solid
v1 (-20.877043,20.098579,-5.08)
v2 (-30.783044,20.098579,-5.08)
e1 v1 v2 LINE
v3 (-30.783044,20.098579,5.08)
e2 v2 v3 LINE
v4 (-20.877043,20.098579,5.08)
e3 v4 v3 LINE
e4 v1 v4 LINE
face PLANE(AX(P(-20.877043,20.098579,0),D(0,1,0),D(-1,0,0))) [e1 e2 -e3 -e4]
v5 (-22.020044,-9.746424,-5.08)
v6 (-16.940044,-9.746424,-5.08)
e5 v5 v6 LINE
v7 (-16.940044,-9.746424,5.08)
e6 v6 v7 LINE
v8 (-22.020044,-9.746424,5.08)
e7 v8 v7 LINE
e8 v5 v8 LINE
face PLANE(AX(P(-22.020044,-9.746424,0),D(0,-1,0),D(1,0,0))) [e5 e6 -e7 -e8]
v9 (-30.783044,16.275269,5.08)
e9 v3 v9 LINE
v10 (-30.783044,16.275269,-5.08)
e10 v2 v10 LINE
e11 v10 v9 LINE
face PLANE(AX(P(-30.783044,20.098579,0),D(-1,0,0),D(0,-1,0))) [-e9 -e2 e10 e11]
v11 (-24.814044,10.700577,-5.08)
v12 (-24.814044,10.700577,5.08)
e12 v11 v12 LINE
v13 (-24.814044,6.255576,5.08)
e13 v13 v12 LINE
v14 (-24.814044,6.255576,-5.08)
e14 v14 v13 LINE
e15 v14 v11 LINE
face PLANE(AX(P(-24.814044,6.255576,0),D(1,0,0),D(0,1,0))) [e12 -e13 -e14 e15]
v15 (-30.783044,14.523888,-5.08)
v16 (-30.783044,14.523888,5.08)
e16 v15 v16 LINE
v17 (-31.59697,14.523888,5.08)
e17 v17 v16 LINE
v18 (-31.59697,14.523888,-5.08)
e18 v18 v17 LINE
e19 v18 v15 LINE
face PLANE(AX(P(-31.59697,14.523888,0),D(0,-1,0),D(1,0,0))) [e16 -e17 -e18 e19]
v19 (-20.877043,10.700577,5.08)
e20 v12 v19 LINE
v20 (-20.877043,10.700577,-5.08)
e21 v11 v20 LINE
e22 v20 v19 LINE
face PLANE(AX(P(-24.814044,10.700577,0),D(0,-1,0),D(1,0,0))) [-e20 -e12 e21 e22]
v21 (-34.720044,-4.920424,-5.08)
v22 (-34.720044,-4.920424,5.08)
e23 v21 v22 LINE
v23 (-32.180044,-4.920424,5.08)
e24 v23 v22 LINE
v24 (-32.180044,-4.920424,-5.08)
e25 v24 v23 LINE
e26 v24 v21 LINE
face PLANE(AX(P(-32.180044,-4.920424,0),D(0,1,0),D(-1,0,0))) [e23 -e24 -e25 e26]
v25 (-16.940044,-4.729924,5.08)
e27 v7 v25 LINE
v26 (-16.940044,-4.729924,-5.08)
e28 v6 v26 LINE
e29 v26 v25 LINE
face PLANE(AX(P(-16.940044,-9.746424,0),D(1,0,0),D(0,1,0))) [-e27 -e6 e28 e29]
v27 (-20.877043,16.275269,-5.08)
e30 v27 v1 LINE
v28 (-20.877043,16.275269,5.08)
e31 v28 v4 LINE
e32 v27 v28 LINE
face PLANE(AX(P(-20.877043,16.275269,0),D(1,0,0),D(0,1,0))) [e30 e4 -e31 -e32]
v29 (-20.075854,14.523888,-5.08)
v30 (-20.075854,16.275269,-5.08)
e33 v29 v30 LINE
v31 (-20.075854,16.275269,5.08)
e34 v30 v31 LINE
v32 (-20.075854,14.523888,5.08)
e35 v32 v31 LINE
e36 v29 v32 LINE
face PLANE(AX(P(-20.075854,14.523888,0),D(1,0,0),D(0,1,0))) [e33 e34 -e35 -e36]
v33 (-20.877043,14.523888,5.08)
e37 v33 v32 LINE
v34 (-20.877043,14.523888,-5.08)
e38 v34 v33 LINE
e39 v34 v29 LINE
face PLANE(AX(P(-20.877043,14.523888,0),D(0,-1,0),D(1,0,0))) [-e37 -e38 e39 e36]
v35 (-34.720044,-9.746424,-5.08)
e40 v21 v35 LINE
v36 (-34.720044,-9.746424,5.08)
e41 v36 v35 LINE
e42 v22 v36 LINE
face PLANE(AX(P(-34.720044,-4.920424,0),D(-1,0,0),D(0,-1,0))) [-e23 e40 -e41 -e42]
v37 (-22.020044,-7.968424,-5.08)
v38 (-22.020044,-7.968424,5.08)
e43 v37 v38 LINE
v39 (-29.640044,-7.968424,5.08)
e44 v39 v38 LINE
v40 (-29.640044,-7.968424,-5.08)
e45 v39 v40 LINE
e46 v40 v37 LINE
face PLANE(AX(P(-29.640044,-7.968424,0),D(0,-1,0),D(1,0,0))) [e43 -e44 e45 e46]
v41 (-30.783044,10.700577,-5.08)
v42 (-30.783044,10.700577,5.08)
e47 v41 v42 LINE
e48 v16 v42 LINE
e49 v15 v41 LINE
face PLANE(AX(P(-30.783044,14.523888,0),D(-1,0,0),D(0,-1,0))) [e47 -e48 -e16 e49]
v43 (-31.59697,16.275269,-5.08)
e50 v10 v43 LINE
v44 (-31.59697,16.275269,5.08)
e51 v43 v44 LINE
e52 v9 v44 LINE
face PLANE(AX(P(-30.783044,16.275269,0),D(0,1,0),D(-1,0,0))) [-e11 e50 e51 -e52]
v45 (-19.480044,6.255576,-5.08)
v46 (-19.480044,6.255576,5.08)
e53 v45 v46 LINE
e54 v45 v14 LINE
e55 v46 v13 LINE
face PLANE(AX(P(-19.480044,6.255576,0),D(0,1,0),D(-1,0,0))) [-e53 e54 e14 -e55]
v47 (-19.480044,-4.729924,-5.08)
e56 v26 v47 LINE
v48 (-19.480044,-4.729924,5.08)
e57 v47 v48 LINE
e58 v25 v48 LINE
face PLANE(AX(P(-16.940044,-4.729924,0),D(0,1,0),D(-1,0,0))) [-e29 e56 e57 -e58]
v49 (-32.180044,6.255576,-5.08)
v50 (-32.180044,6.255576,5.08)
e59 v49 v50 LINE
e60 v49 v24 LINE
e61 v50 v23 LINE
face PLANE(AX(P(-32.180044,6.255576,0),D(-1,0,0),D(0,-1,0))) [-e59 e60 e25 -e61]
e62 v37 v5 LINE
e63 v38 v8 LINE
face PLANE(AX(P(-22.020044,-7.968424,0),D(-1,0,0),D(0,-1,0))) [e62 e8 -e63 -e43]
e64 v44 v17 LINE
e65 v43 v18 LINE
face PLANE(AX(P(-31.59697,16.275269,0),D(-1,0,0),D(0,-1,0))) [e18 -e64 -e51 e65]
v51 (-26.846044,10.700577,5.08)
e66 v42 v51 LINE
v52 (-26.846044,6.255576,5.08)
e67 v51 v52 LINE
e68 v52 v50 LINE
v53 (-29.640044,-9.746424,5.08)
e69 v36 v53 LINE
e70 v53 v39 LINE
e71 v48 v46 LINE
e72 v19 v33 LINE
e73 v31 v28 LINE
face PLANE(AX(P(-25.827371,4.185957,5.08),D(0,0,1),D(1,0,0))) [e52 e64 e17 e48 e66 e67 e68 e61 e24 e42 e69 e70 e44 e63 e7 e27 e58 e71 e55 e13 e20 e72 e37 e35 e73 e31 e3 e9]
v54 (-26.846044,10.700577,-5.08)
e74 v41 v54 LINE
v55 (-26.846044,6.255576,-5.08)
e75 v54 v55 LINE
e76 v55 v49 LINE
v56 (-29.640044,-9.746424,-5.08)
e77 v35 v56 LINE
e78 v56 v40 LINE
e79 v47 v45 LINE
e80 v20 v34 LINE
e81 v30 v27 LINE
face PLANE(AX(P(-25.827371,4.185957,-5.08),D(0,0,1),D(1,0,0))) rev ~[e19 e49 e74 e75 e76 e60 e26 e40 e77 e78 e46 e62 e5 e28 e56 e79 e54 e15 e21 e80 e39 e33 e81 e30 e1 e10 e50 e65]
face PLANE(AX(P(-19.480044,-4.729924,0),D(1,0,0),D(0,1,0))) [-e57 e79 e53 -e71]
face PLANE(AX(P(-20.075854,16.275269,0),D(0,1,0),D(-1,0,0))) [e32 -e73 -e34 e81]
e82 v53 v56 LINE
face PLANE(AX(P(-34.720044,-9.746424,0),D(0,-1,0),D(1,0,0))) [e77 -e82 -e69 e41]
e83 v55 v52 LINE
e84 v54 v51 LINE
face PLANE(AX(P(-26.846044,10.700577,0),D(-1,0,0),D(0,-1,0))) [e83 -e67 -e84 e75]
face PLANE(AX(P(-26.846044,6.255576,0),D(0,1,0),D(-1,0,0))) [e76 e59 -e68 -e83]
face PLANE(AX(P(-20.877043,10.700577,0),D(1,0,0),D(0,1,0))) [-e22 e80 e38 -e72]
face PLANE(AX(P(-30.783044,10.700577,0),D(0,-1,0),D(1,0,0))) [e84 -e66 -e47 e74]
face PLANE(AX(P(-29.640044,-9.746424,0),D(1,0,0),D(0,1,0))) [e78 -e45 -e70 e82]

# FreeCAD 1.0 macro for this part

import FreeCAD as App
import Part
import Sketcher

V = App.Vector
Q = App.Units.Quantity

doc = App.newDocument("Part")
body = doc.addObject("PartDesign::Body", "Body")

# Sketch on XY plane
sketch1 = doc.addObject("Sketcher::SketchObject", "Sketch")
body.addObject(sketch1)
sketch1.AttachmentSupport = (doc.XY_Plane, [""])
sketch1.MapMode = "FlatFace"
sketch1.addGeometry(Part.LineSegment(V(-29.6, -8, 0), V(-22, -8, 0)), False)
sketch1.addGeometry(Part.LineSegment(V(-22, -8, 0), V(-22, -9.7, 0)), False)
sketch1.addGeometry(Part.LineSegment(V(-22, -9.7, 0), V(-16.9, -9.7, 0)), False)
sketch1.addGeometry(Part.LineSegment(V(-16.9, -9.7, 0), V(-16.9, -4.7, 0)), False)
sketch1.addGeometry(Part.LineSegment(V(-16.9, -4.7, 0), V(-19.5, -4.7, 0)), False)
sketch1.addGeometry(Part.LineSegment(V(-19.5, -4.7, 0), V(-19.5, 6.3, 0)), False)
sketch1.addGeometry(Part.LineSegment(V(-19.5, 6.3, 0), V(-24.8, 6.3, 0)), False)
sketch1.addGeometry(Part.LineSegment(V(-24.8, 6.3, 0), V(-24.8, 10.7, 0)), False)
sketch1.addGeometry(Part.LineSegment(V(-24.8, 10.7, 0), V(-20.9, 10.7, 0)), False)
sketch1.addGeometry(Part.LineSegment(V(-20.9, 10.7, 0), V(-20.9, 14.5, 0)), False)
sketch1.addGeometry(Part.LineSegment(V(-20.9, 14.5, 0), V(-20.1, 14.5, 0)), False)
sketch1.addGeometry(Part.LineSegment(V(-20.1, 14.5, 0), V(-20.1, 16.3, 0)), False)
sketch1.addGeometry(Part.LineSegment(V(-20.1, 16.3, 0), V(-20.9, 16.3, 0)), False)
sketch1.addGeometry(Part.LineSegment(V(-20.9, 16.3, 0), V(-20.9, 20.1, 0)), False)
sketch1.addGeometry(Part.LineSegment(V(-20.9, 20.1, 0), V(-30.8, 20.1, 0)), False)
sketch1.addGeometry(Part.LineSegment(V(-30.8, 20.1, 0), V(-30.8, 16.3, 0)), False)
sketch1.addGeometry(Part.LineSegment(V(-30.8, 16.3, 0), V(-31.6, 16.3, 0)), False)
sketch1.addGeometry(Part.LineSegment(V(-31.6, 16.3, 0), V(-31.6, 14.5, 0)), False)
sketch1.addGeometry(Part.LineSegment(V(-31.6, 14.5, 0), V(-30.8, 14.5, 0)), False)
sketch1.addGeometry(Part.LineSegment(V(-30.8, 14.5, 0), V(-30.8, 10.7, 0)), False)
sketch1.addGeometry(Part.LineSegment(V(-30.8, 10.7, 0), V(-26.8, 10.7, 0)), False)
sketch1.addGeometry(Part.LineSegment(V(-26.8, 10.7, 0), V(-26.8, 6.3, 0)), False)
sketch1.addGeometry(Part.LineSegment(V(-26.8, 6.3, 0), V(-32.2, 6.3, 0)), False)
sketch1.addGeometry(Part.LineSegment(V(-32.2, 6.3, 0), V(-32.2, -4.9, 0)), False)
sketch1.addGeometry(Part.LineSegment(V(-32.2, -4.9, 0), V(-34.7, -4.9, 0)), False)
sketch1.addGeometry(Part.LineSegment(V(-34.7, -4.9, 0), V(-34.7, -9.7, 0)), False)
sketch1.addGeometry(Part.LineSegment(V(-34.7, -9.7, 0), V(-29.6, -9.7, 0)), False)
sketch1.addGeometry(Part.LineSegment(V(-29.6, -9.7, 0), V(-29.6, -8, 0)), False)
sketch1.addConstraint(Sketcher.Constraint("Coincident", 0, 2, 1, 1))
sketch1.addConstraint(Sketcher.Constraint("Coincident", 1, 2, 2, 1))
sketch1.addConstraint(Sketcher.Constraint("Coincident", 2, 2, 3, 1))
sketch1.addConstraint(Sketcher.Constraint("Coincident", 3, 2, 4, 1))
sketch1.addConstraint(Sketcher.Constraint("Coincident", 4, 2, 5, 1))
sketch1.addConstraint(Sketcher.Constraint("Coincident", 5, 2, 6, 1))
sketch1.addConstraint(Sketcher.Constraint("Coincident", 6, 2, 7, 1))
sketch1.addConstraint(Sketcher.Constraint("Coincident", 7, 2, 8, 1))
sketch1.addConstraint(Sketcher.Constraint("Coincident", 8, 2, 9, 1))
sketch1.addConstraint(Sketcher.Constraint("Coincident", 9, 2, 10, 1))
sketch1.addConstraint(Sketcher.Constraint("Coincident", 10, 2, 11, 1))
sketch1.addConstraint(Sketcher.Constraint("Coincident", 11, 2, 12, 1))
sketch1.addConstraint(Sketcher.Constraint("Coincident", 12, 2, 13, 1))
sketch1.addConstraint(Sketcher.Constraint("Coincident", 13, 2, 14, 1))
sketch1.addConstraint(Sketcher.Constraint("Coincident", 14, 2, 15, 1))
sketch1.addConstraint(Sketcher.Constraint("Coincident", 15, 2, 16, 1))
sketch1.addConstraint(Sketcher.Constraint("Coincident", 16, 2, 17, 1))
sketch1.addConstraint(Sketcher.Constraint("Coincident", 17, 2, 18, 1))
sketch1.addConstraint(Sketcher.Constraint("Coincident", 18, 2, 19, 1))
sketch1.addConstraint(Sketcher.Constraint("Coincident", 19, 2, 20, 1))
sketch1.addConstraint(Sketcher.Constraint("Coincident", 20, 2, 21, 1))
sketch1.addConstraint(Sketcher.Constraint("Coincident", 21, 2, 22, 1))
sketch1.addConstraint(Sketcher.Constraint("Coincident", 22, 2, 23, 1))
sketch1.addConstraint(Sketcher.Constraint("Coincident", 23, 2, 24, 1))
sketch1.addConstraint(Sketcher.Constraint("Coincident", 24, 2, 25, 1))
sketch1.addConstraint(Sketcher.Constraint("Coincident", 25, 2, 26, 1))
sketch1.addConstraint(Sketcher.Constraint("Coincident", 26, 2, 27, 1))
sketch1.addConstraint(Sketcher.Constraint("Coincident", 27, 2, 0, 1))
sketch1.addConstraint(Sketcher.Constraint("Horizontal", 0))
sketch1.addConstraint(Sketcher.Constraint("Vertical", 1))
sketch1.addConstraint(Sketcher.Constraint("Horizontal", 2))
sketch1.addConstraint(Sketcher.Constraint("Vertical", 3))
sketch1.addConstraint(Sketcher.Constraint("Horizontal", 4))
sketch1.addConstraint(Sketcher.Constraint("Vertical", 5))
sketch1.addConstraint(Sketcher.Constraint("Horizontal", 6))
sketch1.addConstraint(Sketcher.Constraint("Vertical", 7))
sketch1.addConstraint(Sketcher.Constraint("Horizontal", 8))
sketch1.addConstraint(Sketcher.Constraint("Vertical", 9))
sketch1.addConstraint(Sketcher.Constraint("Horizontal", 10))
sketch1.addConstraint(Sketcher.Constraint("Vertical", 11))
sketch1.addConstraint(Sketcher.Constraint("Horizontal", 12))
sketch1.addConstraint(Sketcher.Constraint("Vertical", 13))
sketch1.addConstraint(Sketcher.Constraint("Horizontal", 14))
sketch1.addConstraint(Sketcher.Constraint("Vertical", 15))
sketch1.addConstraint(Sketcher.Constraint("Horizontal", 16))
sketch1.addConstraint(Sketcher.Constraint("Vertical", 17))
sketch1.addConstraint(Sketcher.Constraint("Horizontal", 18))
sketch1.addConstraint(Sketcher.Constraint("Vertical", 19))
sketch1.addConstraint(Sketcher.Constraint("Horizontal", 20))
sketch1.addConstraint(Sketcher.Constraint("Vertical", 21))
sketch1.addConstraint(Sketcher.Constraint("Horizontal", 22))
sketch1.addConstraint(Sketcher.Constraint("Vertical", 23))
sketch1.addConstraint(Sketcher.Constraint("Horizontal", 24))
sketch1.addConstraint(Sketcher.Constraint("Vertical", 25))
sketch1.addConstraint(Sketcher.Constraint("Horizontal", 26))
sketch1.addConstraint(Sketcher.Constraint("Vertical", 27))
sketch1.addConstraint(Sketcher.Constraint("Horizontal", 12, 2, 15, 2))
sketch1.addConstraint(Sketcher.Constraint("Horizontal", 10, 2, 17, 2))
sketch1.addConstraint(Sketcher.Constraint("Horizontal", 8, 2, 19, 2))
sketch1.addConstraint(Sketcher.Constraint("Horizontal", 6, 2, 21, 2))
sketch1.addConstraint(Sketcher.Constraint("Horizontal", 2, 2, 25, 2))
sketch1.addConstraint(Sketcher.Constraint("Vertical", 9, 2, 12, 2))
sketch1.addConstraint(Sketcher.Constraint("Vertical", 15, 2, 18, 2))
sketch1.addConstraint(Sketcher.Constraint("Equal", 8, 20))
sketch1.addConstraint(Sketcher.Constraint("Equal", 6, 22))
sketch1.addConstraint(Sketcher.Constraint("Equal", 4, 24))
sketch1.addConstraint(Sketcher.Constraint("Equal", 2, 26))
sketch1.addConstraint(Sketcher.Constraint("Equal", 9, 13))
sketch1.addConstraint(Sketcher.Constraint("DistanceX", 0, 1, 0, 2, Q("0.3 in")))
sketch1.addConstraint(Sketcher.Constraint("DistanceX", 2, 1, 2, 2, Q("0.2 in")))
sketch1.addConstraint(Sketcher.Constraint("DistanceX", 4, 2, 4, 1, Q("0.1 in")))
sketch1.addConstraint(Sketcher.Constraint("DistanceX", 6, 2, 6, 1, Q("0.21 in")))
sketch1.addConstraint(Sketcher.Constraint("DistanceX", 14, 2, 14, 1, Q("0.39 in")))
sketch1.addConstraint(Sketcher.Constraint("DistanceY", 1, 2, 1, 1, Q("0.07 in")))
sketch1.addConstraint(Sketcher.Constraint("DistanceY", 23, 2, 23, 1, Q("0.44 in")))
sketch1.addConstraint(Sketcher.Constraint("DistanceY", 25, 2, 25, 1, Q("0.19 in")))
sketch1.addConstraint(Sketcher.Constraint("DistanceY", 7, 1, 7, 2, Q("0.175 in")))
sketch1.addConstraint(Sketcher.Constraint("DistanceY", 8, 2, 13, 2, Q("0.3700001 in")))
sketch1.addConstraint(Sketcher.Constraint("DistanceY", 3, 1, 3, 2, Q("0.1975 in")))
sketch1.addConstraint(Sketcher.Constraint("DistanceX", 10, 1, 10, 2, Q("0.801189 mm")))
sketch1.addConstraint(Sketcher.Constraint("DistanceY", 9, 1, 9, 2, Q("3.823311 mm")))
sketch1.addConstraint(Sketcher.Constraint("DistanceX", 16, 2, 16, 1, Q("0.813926 mm")))
sketch1.addConstraint(Sketcher.Constraint("DistanceY", -1, 1, 11, 2, Q("16.275269 mm")))
sketch1.addConstraint(Sketcher.Constraint("DistanceX", 16, 2, -1, 1, Q("31.59697 mm")))
pad1 = doc.addObject("PartDesign::Pad", "Pad")
body.addObject(pad1)
pad1.Profile = sketch1
pad1.Length = Q("0.4 in")
pad1.Midplane = True

doc.recompute()
